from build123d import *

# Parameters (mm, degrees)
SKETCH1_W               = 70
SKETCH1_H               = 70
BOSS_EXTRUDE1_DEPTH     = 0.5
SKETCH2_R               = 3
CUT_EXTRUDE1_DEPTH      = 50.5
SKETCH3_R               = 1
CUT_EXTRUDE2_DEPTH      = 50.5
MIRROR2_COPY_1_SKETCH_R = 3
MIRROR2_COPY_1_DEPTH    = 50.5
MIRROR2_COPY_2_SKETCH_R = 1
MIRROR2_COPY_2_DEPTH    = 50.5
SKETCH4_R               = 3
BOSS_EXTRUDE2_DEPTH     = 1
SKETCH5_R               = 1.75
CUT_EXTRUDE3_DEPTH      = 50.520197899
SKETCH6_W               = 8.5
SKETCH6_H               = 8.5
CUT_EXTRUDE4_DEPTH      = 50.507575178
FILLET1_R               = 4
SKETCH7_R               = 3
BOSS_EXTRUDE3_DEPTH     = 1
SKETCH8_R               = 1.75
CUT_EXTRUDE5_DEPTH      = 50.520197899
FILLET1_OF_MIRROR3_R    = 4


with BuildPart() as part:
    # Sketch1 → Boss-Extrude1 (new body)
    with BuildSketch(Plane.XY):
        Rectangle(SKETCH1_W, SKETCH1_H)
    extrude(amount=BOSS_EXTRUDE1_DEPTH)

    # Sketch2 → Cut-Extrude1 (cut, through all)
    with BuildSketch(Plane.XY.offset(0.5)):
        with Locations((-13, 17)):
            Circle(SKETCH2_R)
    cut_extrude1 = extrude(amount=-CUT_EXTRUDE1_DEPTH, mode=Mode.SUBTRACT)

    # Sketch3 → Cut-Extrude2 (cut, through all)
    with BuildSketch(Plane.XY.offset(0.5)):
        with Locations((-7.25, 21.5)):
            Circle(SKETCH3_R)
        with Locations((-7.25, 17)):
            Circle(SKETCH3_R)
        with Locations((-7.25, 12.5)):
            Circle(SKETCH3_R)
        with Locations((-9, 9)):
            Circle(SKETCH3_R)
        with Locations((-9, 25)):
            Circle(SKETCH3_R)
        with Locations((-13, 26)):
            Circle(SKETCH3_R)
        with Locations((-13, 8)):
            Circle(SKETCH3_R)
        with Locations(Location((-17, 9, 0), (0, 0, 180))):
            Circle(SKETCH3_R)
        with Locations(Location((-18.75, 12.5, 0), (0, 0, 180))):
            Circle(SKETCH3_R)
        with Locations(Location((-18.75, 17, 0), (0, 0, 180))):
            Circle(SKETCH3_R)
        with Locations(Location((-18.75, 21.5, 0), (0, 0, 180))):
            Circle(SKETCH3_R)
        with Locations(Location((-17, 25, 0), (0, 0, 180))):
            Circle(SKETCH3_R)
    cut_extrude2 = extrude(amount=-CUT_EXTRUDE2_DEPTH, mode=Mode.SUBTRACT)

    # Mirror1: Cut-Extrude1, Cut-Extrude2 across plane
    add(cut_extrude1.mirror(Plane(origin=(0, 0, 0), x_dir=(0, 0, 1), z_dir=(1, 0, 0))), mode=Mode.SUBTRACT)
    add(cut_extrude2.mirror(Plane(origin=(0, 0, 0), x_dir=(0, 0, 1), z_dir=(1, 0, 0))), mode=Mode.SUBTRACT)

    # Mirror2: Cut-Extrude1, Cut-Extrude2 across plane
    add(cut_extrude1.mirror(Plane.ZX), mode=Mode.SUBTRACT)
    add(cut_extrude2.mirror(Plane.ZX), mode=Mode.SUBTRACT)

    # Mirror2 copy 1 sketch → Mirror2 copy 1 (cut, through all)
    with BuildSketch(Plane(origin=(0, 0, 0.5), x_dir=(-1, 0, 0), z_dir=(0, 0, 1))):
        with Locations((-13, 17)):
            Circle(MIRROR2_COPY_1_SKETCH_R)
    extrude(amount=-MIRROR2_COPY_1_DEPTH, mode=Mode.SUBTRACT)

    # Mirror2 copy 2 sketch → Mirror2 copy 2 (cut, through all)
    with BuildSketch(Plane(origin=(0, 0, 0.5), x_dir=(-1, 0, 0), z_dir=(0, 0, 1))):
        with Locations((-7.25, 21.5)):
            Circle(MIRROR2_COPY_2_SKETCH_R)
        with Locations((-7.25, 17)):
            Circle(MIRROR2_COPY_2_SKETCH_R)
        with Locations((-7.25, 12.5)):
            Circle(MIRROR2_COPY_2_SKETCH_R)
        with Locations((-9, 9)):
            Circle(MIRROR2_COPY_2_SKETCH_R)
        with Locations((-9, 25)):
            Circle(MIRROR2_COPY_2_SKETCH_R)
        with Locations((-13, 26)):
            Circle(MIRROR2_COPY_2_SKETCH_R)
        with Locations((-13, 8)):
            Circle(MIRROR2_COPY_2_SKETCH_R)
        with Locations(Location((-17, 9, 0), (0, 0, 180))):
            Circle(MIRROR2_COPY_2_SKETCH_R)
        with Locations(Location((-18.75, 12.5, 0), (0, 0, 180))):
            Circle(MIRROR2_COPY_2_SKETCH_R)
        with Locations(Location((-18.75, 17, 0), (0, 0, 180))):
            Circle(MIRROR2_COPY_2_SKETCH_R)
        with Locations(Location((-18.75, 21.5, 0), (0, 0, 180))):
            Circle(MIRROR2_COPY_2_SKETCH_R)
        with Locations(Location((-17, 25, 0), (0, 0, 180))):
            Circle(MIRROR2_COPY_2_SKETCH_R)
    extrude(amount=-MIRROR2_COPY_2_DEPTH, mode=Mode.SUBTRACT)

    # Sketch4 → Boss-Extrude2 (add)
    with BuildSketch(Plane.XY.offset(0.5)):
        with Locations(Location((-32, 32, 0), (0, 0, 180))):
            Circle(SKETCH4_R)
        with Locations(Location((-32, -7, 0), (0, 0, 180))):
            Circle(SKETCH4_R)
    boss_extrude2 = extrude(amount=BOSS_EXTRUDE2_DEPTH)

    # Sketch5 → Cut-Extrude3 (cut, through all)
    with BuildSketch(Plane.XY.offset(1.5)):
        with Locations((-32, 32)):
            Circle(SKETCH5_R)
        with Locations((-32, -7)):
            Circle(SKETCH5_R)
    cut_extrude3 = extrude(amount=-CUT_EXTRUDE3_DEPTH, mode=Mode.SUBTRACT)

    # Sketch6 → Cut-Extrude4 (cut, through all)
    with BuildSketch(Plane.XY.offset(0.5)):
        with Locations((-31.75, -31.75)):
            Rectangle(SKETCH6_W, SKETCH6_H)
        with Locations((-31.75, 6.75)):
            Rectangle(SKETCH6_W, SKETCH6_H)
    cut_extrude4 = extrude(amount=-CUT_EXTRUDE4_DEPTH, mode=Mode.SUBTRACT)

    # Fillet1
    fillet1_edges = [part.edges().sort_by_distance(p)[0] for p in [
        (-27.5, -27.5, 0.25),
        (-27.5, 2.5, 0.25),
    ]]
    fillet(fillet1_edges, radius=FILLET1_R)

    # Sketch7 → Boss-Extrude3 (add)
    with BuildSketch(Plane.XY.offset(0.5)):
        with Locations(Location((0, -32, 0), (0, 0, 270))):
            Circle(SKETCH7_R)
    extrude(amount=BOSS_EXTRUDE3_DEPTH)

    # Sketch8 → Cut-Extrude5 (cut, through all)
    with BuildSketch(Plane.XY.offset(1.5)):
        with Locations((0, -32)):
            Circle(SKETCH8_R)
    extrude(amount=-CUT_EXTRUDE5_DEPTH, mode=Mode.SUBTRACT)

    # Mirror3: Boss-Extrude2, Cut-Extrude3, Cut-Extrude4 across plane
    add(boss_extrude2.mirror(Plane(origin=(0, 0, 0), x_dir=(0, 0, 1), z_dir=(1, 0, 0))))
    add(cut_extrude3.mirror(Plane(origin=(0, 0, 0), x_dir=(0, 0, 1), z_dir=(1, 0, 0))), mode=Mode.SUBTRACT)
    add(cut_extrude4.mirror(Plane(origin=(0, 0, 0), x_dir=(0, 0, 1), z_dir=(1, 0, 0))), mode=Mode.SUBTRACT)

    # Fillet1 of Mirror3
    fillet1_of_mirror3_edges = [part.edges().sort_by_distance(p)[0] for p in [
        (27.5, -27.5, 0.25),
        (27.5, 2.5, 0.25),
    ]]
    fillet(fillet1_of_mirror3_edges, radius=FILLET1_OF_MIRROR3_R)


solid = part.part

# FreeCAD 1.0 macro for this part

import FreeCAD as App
import Part
import Sketcher
from FreeCAD import Vector
Q = App.Units.Quantity


def edges_at(feature, points):
    """Names of the edges that pass closest to the given points."""
    edges = feature.Shape.Edges
    near = lambda p: min(range(len(edges)), key=lambda i: edges[i].distToShape(Part.Vertex(*p))[0])
    return sorted({f"Edge{near(p) + 1}" for p in points})

doc = App.newDocument("Part")
params = doc.addObject("Spreadsheet::Sheet", "Params")
for row, (alias, value) in enumerate([
    ("sketch1_width", "70 mm"),
    ("pad1_length", "0.5 mm"),
    ("sketch2_diameter", "6 mm"),
    ("sketch3_diameter", "2 mm"),
    ("sketch4_diameter", "6 mm"),
    ("sketch5_diameter", "2 mm"),
    ("sketch6_diameter", "6 mm"),
    ("pad2_length", "1 mm"),
    ("sketch7_diameter", "3.5 mm"),
    ("sketch8_width", "8.5 mm"),
    ("fillet_radius", "4 mm"),
    ("sketch9_diameter", "6 mm"),
    ("pad3_length", "1 mm"),
    ("sketch10_diameter", "3.5 mm"),
    ("fillet2_radius", "4 mm"),
], start=1):
    params.set(f"A{row}", alias)
    params.set(f"B{row}", "=" + value)
    params.setAlias(f"B{row}", alias)

body = doc.addObject("PartDesign::Body", "Body")

sketch1 = body.newObject("Sketcher::SketchObject", "Sketch")
sketch1.AttachmentSupport = (doc.getObject("XY_Plane"), [""])
sketch1.MapMode = "FlatFace"
sketch1.addGeometry(Part.LineSegment(Vector(-35, 35, 0), Vector(-35, -35, 0)), False)
sketch1.addGeometry(Part.LineSegment(Vector(-35, -35, 0), Vector(35, -35, 0)), False)
sketch1.addGeometry(Part.LineSegment(Vector(35, -35, 0), Vector(35, 35, 0)), False)
sketch1.addGeometry(Part.LineSegment(Vector(35, 35, 0), Vector(-35, 35, 0)), False)
sketch1.addConstraint(Sketcher.Constraint("Coincident", 0, 2, 1, 1))
sketch1.addConstraint(Sketcher.Constraint("Coincident", 1, 2, 2, 1))
sketch1.addConstraint(Sketcher.Constraint("Coincident", 2, 2, 3, 1))
sketch1.addConstraint(Sketcher.Constraint("Coincident", 3, 2, 0, 1))
sketch1.addConstraint(Sketcher.Constraint("Vertical", 0))
sketch1.addConstraint(Sketcher.Constraint("Horizontal", 1))
sketch1.addConstraint(Sketcher.Constraint("Vertical", 2))
sketch1.addConstraint(Sketcher.Constraint("Horizontal", 3))
sketch1.addConstraint(Sketcher.Constraint("Symmetric", 0, 2, 2, 2, -1, 1))
sketch1.addConstraint(Sketcher.Constraint("Equal", 3, 0))
sketch1.addConstraint(Sketcher.Constraint("DistanceX", 1, 1, 1, 2, Q("70 mm")))
sketch1.setExpression("Constraints[10]", "Params.sketch1_width")
pad1 = body.newObject("PartDesign::Pad", "Pad")
pad1.Profile = sketch1
pad1.setExpression("Length", "Params.pad1_length")

sketch2 = body.newObject("Sketcher::SketchObject", "Sketch001")
sketch2.AttachmentSupport = (doc.getObject("XY_Plane"), [""])
sketch2.MapMode = "FlatFace"
sketch2.AttachmentOffset = App.Placement(Vector(0, 0, 0.5), App.Rotation())
sketch2.addGeometry(Part.Circle(Vector(-13, 17, 0), Vector(0, 0, 1), 3), False)
sketch2.addConstraint(Sketcher.Constraint("Diameter", 0, Q("6 mm")))
sketch2.addConstraint(Sketcher.Constraint("DistanceX", 0, 3, -1, 1, Q("13 mm")))
sketch2.addConstraint(Sketcher.Constraint("DistanceY", -1, 1, 0, 3, Q("17 mm")))
sketch2.setExpression("Constraints[0]", "Params.sketch2_diameter")
pocket1 = body.newObject("PartDesign::Pocket", "Pocket")
pocket1.Profile = sketch2
pocket1.Type = "ThroughAll"

sketch3 = body.newObject("Sketcher::SketchObject", "Sketch002")
sketch3.AttachmentSupport = (doc.getObject("XY_Plane"), [""])
sketch3.MapMode = "FlatFace"
sketch3.AttachmentOffset = App.Placement(Vector(0, 0, 0.5), App.Rotation())
sketch3.addGeometry(Part.Circle(Vector(-7.25, 21.5, 0), Vector(0, 0, 1), 1), False)
sketch3.addGeometry(Part.Circle(Vector(-7.25, 17, 0), Vector(0, 0, 1), 1), False)
sketch3.addGeometry(Part.Circle(Vector(-7.25, 12.5, 0), Vector(0, 0, 1), 1), False)
sketch3.addGeometry(Part.Circle(Vector(-9, 9, 0), Vector(0, 0, 1), 1), False)
sketch3.addGeometry(Part.Circle(Vector(-9, 25, 0), Vector(0, 0, 1), 1), False)
sketch3.addGeometry(Part.Circle(Vector(-13, 26, 0), Vector(0, 0, 1), 1), False)
sketch3.addGeometry(Part.Circle(Vector(-13, 8, 0), Vector(0, 0, 1), 1), False)
sketch3.addGeometry(Part.Circle(Vector(-17, 9, 0), Vector(0, 0, 1), 1), False)
sketch3.addGeometry(Part.Circle(Vector(-18.75, 12.5, 0), Vector(0, 0, 1), 1), False)
sketch3.addGeometry(Part.Circle(Vector(-18.75, 17, 0), Vector(0, 0, 1), 1), False)
sketch3.addGeometry(Part.Circle(Vector(-18.75, 21.5, 0), Vector(0, 0, 1), 1), False)
sketch3.addGeometry(Part.Circle(Vector(-17, 25, 0), Vector(0, 0, 1), 1), False)
sketch3.addConstraint(Sketcher.Constraint("Equal", 0, 1))
sketch3.addConstraint(Sketcher.Constraint("Equal", 1, 2))
sketch3.addConstraint(Sketcher.Constraint("Equal", 2, 3))
sketch3.addConstraint(Sketcher.Constraint("Equal", 3, 4))
sketch3.addConstraint(Sketcher.Constraint("Equal", 4, 5))
sketch3.addConstraint(Sketcher.Constraint("Equal", 5, 6))
sketch3.addConstraint(Sketcher.Constraint("Equal", 6, 7))
sketch3.addConstraint(Sketcher.Constraint("Equal", 7, 8))
sketch3.addConstraint(Sketcher.Constraint("Equal", 8, 9))
sketch3.addConstraint(Sketcher.Constraint("Equal", 9, 10))
sketch3.addConstraint(Sketcher.Constraint("Equal", 10, 11))
sketch3.addConstraint(Sketcher.Constraint("Horizontal", 3, 3, 7, 3))
sketch3.addConstraint(Sketcher.Constraint("Horizontal", 2, 3, 8, 3))
sketch3.addConstraint(Sketcher.Constraint("Horizontal", 1, 3, 9, 3))
sketch3.addConstraint(Sketcher.Constraint("Horizontal", 0, 3, 10, 3))
sketch3.addConstraint(Sketcher.Constraint("Horizontal", 4, 3, 11, 3))
sketch3.addConstraint(Sketcher.Constraint("Vertical", 0, 3, 1, 3))
sketch3.addConstraint(Sketcher.Constraint("Vertical", 1, 3, 2, 3))
sketch3.addConstraint(Sketcher.Constraint("Vertical", 3, 3, 4, 3))
sketch3.addConstraint(Sketcher.Constraint("Vertical", 5, 3, 6, 3))
sketch3.addConstraint(Sketcher.Constraint("Vertical", 8, 3, 9, 3))
sketch3.addConstraint(Sketcher.Constraint("Vertical", 9, 3, 10, 3))
sketch3.addConstraint(Sketcher.Constraint("Vertical", 7, 3, 11, 3))
sketch3.addConstraint(Sketcher.Constraint("Diameter", 0, Q("2 mm")))
sketch3.addConstraint(Sketcher.Constraint("DistanceY", -1, 1, 1, 3, Q("17 mm")))
sketch3.addConstraint(Sketcher.Constraint("DistanceX", 3, 3, -1, 1, Q("9 mm")))
sketch3.addConstraint(Sketcher.Constraint("DistanceY", -1, 1, 3, 3, Q("9 mm")))
sketch3.addConstraint(Sketcher.Constraint("DistanceY", -1, 1, 4, 3, Q("25 mm")))
sketch3.addConstraint(Sketcher.Constraint("DistanceX", 5, 3, -1, 1, Q("13 mm")))
sketch3.addConstraint(Sketcher.Constraint("DistanceY", -1, 1, 5, 3, Q("26 mm")))
sketch3.addConstraint(Sketcher.Constraint("DistanceY", -1, 1, 6, 3, Q("8 mm")))
sketch3.addConstraint(Sketcher.Constraint("DistanceX", 7, 3, -1, 1, Q("17 mm")))
sketch3.addConstraint(Sketcher.Constraint("DistanceY", 2, 3, 0, 3, Q("9 mm")))
sketch3.addConstraint(Sketcher.Constraint("DistanceY", -1, 1, 0, 3, Q("21.5 mm")))
sketch3.addConstraint(Sketcher.Constraint("DistanceX", 8, 3, 2, 3, Q("11.5 mm")))
sketch3.addConstraint(Sketcher.Constraint("DistanceX", 0, 3, -1, 1, Q("7.25 mm")))
sketch3.setExpression("Constraints[23]", "Params.sketch3_diameter")
pocket2 = body.newObject("PartDesign::Pocket", "Pocket001")
pocket2.Profile = sketch3
pocket2.Type = "ThroughAll"
doc.recompute()

mirrored = body.newObject("PartDesign::Mirrored", "Mirrored")
mirrored.Originals = [pocket1, pocket2]
mirrored.MirrorPlane = (doc.getObject("YZ_Plane"), [""])
body.Tip = mirrored
doc.recompute()

mirrored2 = body.newObject("PartDesign::Mirrored", "Mirrored001")
mirrored2.Originals = [pocket1, pocket2]
mirrored2.MirrorPlane = (doc.getObject("XZ_Plane"), [""])
body.Tip = mirrored2

sketch4 = body.newObject("Sketcher::SketchObject", "Sketch003")
sketch4.AttachmentSupport = (doc.getObject("XY_Plane"), [""])
sketch4.MapMode = "FlatFace"
sketch4.AttachmentOffset = App.Placement(Vector(0, 0, 0.5), App.Rotation())
sketch4.addGeometry(Part.Circle(Vector(13, -17, 0), Vector(0, 0, 1), 3), False)
sketch4.addConstraint(Sketcher.Constraint("Diameter", 0, Q("6 mm")))
sketch4.addConstraint(Sketcher.Constraint("DistanceX", -1, 1, 0, 3, Q("13 mm")))
sketch4.addConstraint(Sketcher.Constraint("DistanceY", 0, 3, -1, 1, Q("17 mm")))
sketch4.setExpression("Constraints[0]", "Params.sketch4_diameter")
pocket3 = body.newObject("PartDesign::Pocket", "Pocket002")
pocket3.Profile = sketch4
pocket3.Type = "ThroughAll"

sketch5 = body.newObject("Sketcher::SketchObject", "Sketch004")
sketch5.AttachmentSupport = (doc.getObject("XY_Plane"), [""])
sketch5.MapMode = "FlatFace"
sketch5.AttachmentOffset = App.Placement(Vector(0, 0, 0.5), App.Rotation())
sketch5.addGeometry(Part.Circle(Vector(7.25, -21.5, 0), Vector(0, 0, 1), 1), False)
sketch5.addGeometry(Part.Circle(Vector(7.25, -17, 0), Vector(0, 0, 1), 1), False)
sketch5.addGeometry(Part.Circle(Vector(7.25, -12.5, 0), Vector(0, 0, 1), 1), False)
sketch5.addGeometry(Part.Circle(Vector(9, -9, 0), Vector(0, 0, 1), 1), False)
sketch5.addGeometry(Part.Circle(Vector(9, -25, 0), Vector(0, 0, 1), 1), False)
sketch5.addGeometry(Part.Circle(Vector(13, -26, 0), Vector(0, 0, 1), 1), False)
sketch5.addGeometry(Part.Circle(Vector(13, -8, 0), Vector(0, 0, 1), 1), False)
sketch5.addGeometry(Part.Circle(Vector(17, -9, 0), Vector(0, 0, 1), 1), False)
sketch5.addGeometry(Part.Circle(Vector(18.75, -12.5, 0), Vector(0, 0, 1), 1), False)
sketch5.addGeometry(Part.Circle(Vector(18.75, -17, 0), Vector(0, 0, 1), 1), False)
sketch5.addGeometry(Part.Circle(Vector(18.75, -21.5, 0), Vector(0, 0, 1), 1), False)
sketch5.addGeometry(Part.Circle(Vector(17, -25, 0), Vector(0, 0, 1), 1), False)
sketch5.addConstraint(Sketcher.Constraint("Equal", 0, 1))
sketch5.addConstraint(Sketcher.Constraint("Equal", 1, 2))
sketch5.addConstraint(Sketcher.Constraint("Equal", 2, 3))
sketch5.addConstraint(Sketcher.Constraint("Equal", 3, 4))
sketch5.addConstraint(Sketcher.Constraint("Equal", 4, 5))
sketch5.addConstraint(Sketcher.Constraint("Equal", 5, 6))
sketch5.addConstraint(Sketcher.Constraint("Equal", 6, 7))
sketch5.addConstraint(Sketcher.Constraint("Equal", 7, 8))
sketch5.addConstraint(Sketcher.Constraint("Equal", 8, 9))
sketch5.addConstraint(Sketcher.Constraint("Equal", 9, 10))
sketch5.addConstraint(Sketcher.Constraint("Equal", 10, 11))
sketch5.addConstraint(Sketcher.Constraint("Horizontal", 3, 3, 7, 3))
sketch5.addConstraint(Sketcher.Constraint("Horizontal", 2, 3, 8, 3))
sketch5.addConstraint(Sketcher.Constraint("Horizontal", 1, 3, 9, 3))
sketch5.addConstraint(Sketcher.Constraint("Horizontal", 0, 3, 10, 3))
sketch5.addConstraint(Sketcher.Constraint("Horizontal", 4, 3, 11, 3))
sketch5.addConstraint(Sketcher.Constraint("Vertical", 0, 3, 1, 3))
sketch5.addConstraint(Sketcher.Constraint("Vertical", 1, 3, 2, 3))
sketch5.addConstraint(Sketcher.Constraint("Vertical", 3, 3, 4, 3))
sketch5.addConstraint(Sketcher.Constraint("Vertical", 5, 3, 6, 3))
sketch5.addConstraint(Sketcher.Constraint("Vertical", 8, 3, 9, 3))
sketch5.addConstraint(Sketcher.Constraint("Vertical", 9, 3, 10, 3))
sketch5.addConstraint(Sketcher.Constraint("Vertical", 7, 3, 11, 3))
sketch5.addConstraint(Sketcher.Constraint("Diameter", 0, Q("2 mm")))
sketch5.addConstraint(Sketcher.Constraint("DistanceY", 1, 3, -1, 1, Q("17 mm")))
sketch5.addConstraint(Sketcher.Constraint("DistanceX", -1, 1, 3, 3, Q("9 mm")))
sketch5.addConstraint(Sketcher.Constraint("DistanceY", 3, 3, -1, 1, Q("9 mm")))
sketch5.addConstraint(Sketcher.Constraint("DistanceY", 4, 3, -1, 1, Q("25 mm")))
sketch5.addConstraint(Sketcher.Constraint("DistanceX", -1, 1, 5, 3, Q("13 mm")))
sketch5.addConstraint(Sketcher.Constraint("DistanceY", 5, 3, -1, 1, Q("26 mm")))
sketch5.addConstraint(Sketcher.Constraint("DistanceY", 6, 3, -1, 1, Q("8 mm")))
sketch5.addConstraint(Sketcher.Constraint("DistanceX", -1, 1, 7, 3, Q("17 mm")))
sketch5.addConstraint(Sketcher.Constraint("DistanceY", 0, 3, 2, 3, Q("9 mm")))
sketch5.addConstraint(Sketcher.Constraint("DistanceY", 0, 3, -1, 1, Q("21.5 mm")))
sketch5.addConstraint(Sketcher.Constraint("DistanceX", 2, 3, 8, 3, Q("11.5 mm")))
sketch5.addConstraint(Sketcher.Constraint("DistanceX", -1, 1, 0, 3, Q("7.25 mm")))
sketch5.setExpression("Constraints[23]", "Params.sketch5_diameter")
pocket4 = body.newObject("PartDesign::Pocket", "Pocket003")
pocket4.Profile = sketch5
pocket4.Type = "ThroughAll"

sketch6 = body.newObject("Sketcher::SketchObject", "Sketch005")
sketch6.AttachmentSupport = (doc.getObject("XY_Plane"), [""])
sketch6.MapMode = "FlatFace"
sketch6.AttachmentOffset = App.Placement(Vector(0, 0, 0.5), App.Rotation())
sketch6.addGeometry(Part.Circle(Vector(-32, 32, 0), Vector(0, 0, 1), 3), False)
sketch6.addGeometry(Part.Circle(Vector(-32, -7, 0), Vector(0, 0, 1), 3), False)
sketch6.addConstraint(Sketcher.Constraint("Equal", 0, 1))
sketch6.addConstraint(Sketcher.Constraint("Vertical", 0, 3, 1, 3))
sketch6.addConstraint(Sketcher.Constraint("Diameter", 0, Q("6 mm")))
sketch6.addConstraint(Sketcher.Constraint("DistanceX", 0, 3, -1, 1, Q("32 mm")))
sketch6.addConstraint(Sketcher.Constraint("DistanceY", -1, 1, 0, 3, Q("32 mm")))
sketch6.addConstraint(Sketcher.Constraint("DistanceY", 1, 3, -1, 1, Q("7 mm")))
sketch6.setExpression("Constraints[2]", "Params.sketch6_diameter")
pad2 = body.newObject("PartDesign::Pad", "Pad001")
pad2.Profile = sketch6
pad2.setExpression("Length", "Params.pad2_length")

sketch7 = body.newObject("Sketcher::SketchObject", "Sketch006")
sketch7.AttachmentSupport = (doc.getObject("XY_Plane"), [""])
sketch7.MapMode = "FlatFace"
sketch7.AttachmentOffset = App.Placement(Vector(0, 0, 1.5), App.Rotation())
sketch7.addGeometry(Part.Circle(Vector(-32, 32, 0), Vector(0, 0, 1), 1.75), False)
sketch7.addGeometry(Part.Circle(Vector(-32, -7, 0), Vector(0, 0, 1), 1.75), False)
sketch7.addConstraint(Sketcher.Constraint("Equal", 0, 1))
sketch7.addConstraint(Sketcher.Constraint("Vertical", 0, 3, 1, 3))
sketch7.addConstraint(Sketcher.Constraint("Diameter", 0, Q("3.5 mm")))
sketch7.addConstraint(Sketcher.Constraint("DistanceX", 0, 3, -1, 1, Q("32 mm")))
sketch7.addConstraint(Sketcher.Constraint("DistanceY", -1, 1, 0, 3, Q("32 mm")))
sketch7.addConstraint(Sketcher.Constraint("DistanceY", 1, 3, -1, 1, Q("7 mm")))
sketch7.setExpression("Constraints[2]", "Params.sketch7_diameter")
pocket5 = body.newObject("PartDesign::Pocket", "Pocket004")
pocket5.Profile = sketch7
pocket5.Type = "ThroughAll"

sketch8 = body.newObject("Sketcher::SketchObject", "Sketch007")
sketch8.AttachmentSupport = (doc.getObject("XY_Plane"), [""])
sketch8.MapMode = "FlatFace"
sketch8.AttachmentOffset = App.Placement(Vector(0, 0, 0.5), App.Rotation())
sketch8.addGeometry(Part.LineSegment(Vector(-36, -27.5, 0), Vector(-36, -36, 0)), False)
sketch8.addGeometry(Part.LineSegment(Vector(-36, -36, 0), Vector(-27.5, -36, 0)), False)
sketch8.addGeometry(Part.LineSegment(Vector(-27.5, -36, 0), Vector(-27.5, -27.5, 0)), False)
sketch8.addGeometry(Part.LineSegment(Vector(-27.5, -27.5, 0), Vector(-36, -27.5, 0)), False)
sketch8.addGeometry(Part.LineSegment(Vector(-36, 11, 0), Vector(-36, 2.5, 0)), False)
sketch8.addGeometry(Part.LineSegment(Vector(-36, 2.5, 0), Vector(-27.5, 2.5, 0)), False)
sketch8.addGeometry(Part.LineSegment(Vector(-27.5, 2.5, 0), Vector(-27.5, 11, 0)), False)
sketch8.addGeometry(Part.LineSegment(Vector(-27.5, 11, 0), Vector(-36, 11, 0)), False)
sketch8.addConstraint(Sketcher.Constraint("Coincident", 0, 2, 1, 1))
sketch8.addConstraint(Sketcher.Constraint("Coincident", 1, 2, 2, 1))
sketch8.addConstraint(Sketcher.Constraint("Coincident", 2, 2, 3, 1))
sketch8.addConstraint(Sketcher.Constraint("Coincident", 3, 2, 0, 1))
sketch8.addConstraint(Sketcher.Constraint("Coincident", 4, 2, 5, 1))
sketch8.addConstraint(Sketcher.Constraint("Coincident", 5, 2, 6, 1))
sketch8.addConstraint(Sketcher.Constraint("Coincident", 6, 2, 7, 1))
sketch8.addConstraint(Sketcher.Constraint("Coincident", 7, 2, 4, 1))
sketch8.addConstraint(Sketcher.Constraint("Vertical", 0))
sketch8.addConstraint(Sketcher.Constraint("Horizontal", 1))
sketch8.addConstraint(Sketcher.Constraint("Vertical", 2))
sketch8.addConstraint(Sketcher.Constraint("Horizontal", 3))
sketch8.addConstraint(Sketcher.Constraint("Vertical", 4))
sketch8.addConstraint(Sketcher.Constraint("Horizontal", 5))
sketch8.addConstraint(Sketcher.Constraint("Vertical", 6))
sketch8.addConstraint(Sketcher.Constraint("Horizontal", 7))
sketch8.addConstraint(Sketcher.Constraint("Vertical", 3, 2, 4, 2))
sketch8.addConstraint(Sketcher.Constraint("Vertical", 2, 2, 5, 2))
sketch8.addConstraint(Sketcher.Constraint("Equal", 7, 0))
sketch8.addConstraint(Sketcher.Constraint("Equal", 2, 4))
sketch8.addConstraint(Sketcher.Constraint("DistanceX", 1, 1, 1, 2, Q("8.5 mm")))
sketch8.addConstraint(Sketcher.Constraint("DistanceX", 0, 2, -1, 1, Q("36 mm")))
sketch8.addConstraint(Sketcher.Constraint("DistanceY", 0, 2, -1, 1, Q("36 mm")))
sketch8.addConstraint(Sketcher.Constraint("DistanceY", -1, 1, 6, 2, Q("11 mm")))
sketch8.setExpression("Constraints[20]", "Params.sketch8_width")
pocket6 = body.newObject("PartDesign::Pocket", "Pocket005")
pocket6.Profile = sketch8
pocket6.Type = "ThroughAll"
doc.recompute()

fillet = body.newObject("PartDesign::Fillet", "Fillet")
fillet.Base = (pocket6, edges_at(pocket6, [(-27.5, -27.5, 0.25), (-27.5, 2.5, 0.25)]))
fillet.setExpression("Radius", "Params.fillet_radius")

sketch9 = body.newObject("Sketcher::SketchObject", "Sketch008")
sketch9.AttachmentSupport = (doc.getObject("XY_Plane"), [""])
sketch9.MapMode = "FlatFace"
sketch9.AttachmentOffset = App.Placement(Vector(0, 0, 0.5), App.Rotation())
sketch9.addGeometry(Part.Circle(Vector(0, -32, 0), Vector(0, 0, 1), 3), False)
sketch9.addConstraint(Sketcher.Constraint("PointOnObject", 0, 3, -2))
sketch9.addConstraint(Sketcher.Constraint("Diameter", 0, Q("6 mm")))
sketch9.addConstraint(Sketcher.Constraint("DistanceY", 0, 3, -1, 1, Q("32 mm")))
sketch9.setExpression("Constraints[1]", "Params.sketch9_diameter")
pad3 = body.newObject("PartDesign::Pad", "Pad002")
pad3.Profile = sketch9
pad3.setExpression("Length", "Params.pad3_length")

sketch10 = body.newObject("Sketcher::SketchObject", "Sketch009")
sketch10.AttachmentSupport = (doc.getObject("XY_Plane"), [""])
sketch10.MapMode = "FlatFace"
sketch10.AttachmentOffset = App.Placement(Vector(0, 0, 1.5), App.Rotation())
sketch10.addGeometry(Part.Circle(Vector(0, -32, 0), Vector(0, 0, 1), 1.75), False)
sketch10.addConstraint(Sketcher.Constraint("PointOnObject", 0, 3, -2))
sketch10.addConstraint(Sketcher.Constraint("Diameter", 0, Q("3.5 mm")))
sketch10.addConstraint(Sketcher.Constraint("DistanceY", 0, 3, -1, 1, Q("32 mm")))
sketch10.setExpression("Constraints[1]", "Params.sketch10_diameter")
pocket7 = body.newObject("PartDesign::Pocket", "Pocket006")
pocket7.Profile = sketch10
pocket7.Type = "ThroughAll"
doc.recompute()

mirrored3 = body.newObject("PartDesign::Mirrored", "Mirrored002")
mirrored3.Originals = [pad2, pocket5, pocket6]
mirrored3.MirrorPlane = (doc.getObject("YZ_Plane"), [""])
body.Tip = mirrored3
doc.recompute()

fillet2 = body.newObject("PartDesign::Fillet", "Fillet001")
fillet2.Base = (mirrored3, edges_at(mirrored3, [(27.5, -27.5, 0.25), (27.5, 2.5, 0.25)]))
fillet2.setExpression("Radius", "Params.fillet2_radius")

doc.recompute()
